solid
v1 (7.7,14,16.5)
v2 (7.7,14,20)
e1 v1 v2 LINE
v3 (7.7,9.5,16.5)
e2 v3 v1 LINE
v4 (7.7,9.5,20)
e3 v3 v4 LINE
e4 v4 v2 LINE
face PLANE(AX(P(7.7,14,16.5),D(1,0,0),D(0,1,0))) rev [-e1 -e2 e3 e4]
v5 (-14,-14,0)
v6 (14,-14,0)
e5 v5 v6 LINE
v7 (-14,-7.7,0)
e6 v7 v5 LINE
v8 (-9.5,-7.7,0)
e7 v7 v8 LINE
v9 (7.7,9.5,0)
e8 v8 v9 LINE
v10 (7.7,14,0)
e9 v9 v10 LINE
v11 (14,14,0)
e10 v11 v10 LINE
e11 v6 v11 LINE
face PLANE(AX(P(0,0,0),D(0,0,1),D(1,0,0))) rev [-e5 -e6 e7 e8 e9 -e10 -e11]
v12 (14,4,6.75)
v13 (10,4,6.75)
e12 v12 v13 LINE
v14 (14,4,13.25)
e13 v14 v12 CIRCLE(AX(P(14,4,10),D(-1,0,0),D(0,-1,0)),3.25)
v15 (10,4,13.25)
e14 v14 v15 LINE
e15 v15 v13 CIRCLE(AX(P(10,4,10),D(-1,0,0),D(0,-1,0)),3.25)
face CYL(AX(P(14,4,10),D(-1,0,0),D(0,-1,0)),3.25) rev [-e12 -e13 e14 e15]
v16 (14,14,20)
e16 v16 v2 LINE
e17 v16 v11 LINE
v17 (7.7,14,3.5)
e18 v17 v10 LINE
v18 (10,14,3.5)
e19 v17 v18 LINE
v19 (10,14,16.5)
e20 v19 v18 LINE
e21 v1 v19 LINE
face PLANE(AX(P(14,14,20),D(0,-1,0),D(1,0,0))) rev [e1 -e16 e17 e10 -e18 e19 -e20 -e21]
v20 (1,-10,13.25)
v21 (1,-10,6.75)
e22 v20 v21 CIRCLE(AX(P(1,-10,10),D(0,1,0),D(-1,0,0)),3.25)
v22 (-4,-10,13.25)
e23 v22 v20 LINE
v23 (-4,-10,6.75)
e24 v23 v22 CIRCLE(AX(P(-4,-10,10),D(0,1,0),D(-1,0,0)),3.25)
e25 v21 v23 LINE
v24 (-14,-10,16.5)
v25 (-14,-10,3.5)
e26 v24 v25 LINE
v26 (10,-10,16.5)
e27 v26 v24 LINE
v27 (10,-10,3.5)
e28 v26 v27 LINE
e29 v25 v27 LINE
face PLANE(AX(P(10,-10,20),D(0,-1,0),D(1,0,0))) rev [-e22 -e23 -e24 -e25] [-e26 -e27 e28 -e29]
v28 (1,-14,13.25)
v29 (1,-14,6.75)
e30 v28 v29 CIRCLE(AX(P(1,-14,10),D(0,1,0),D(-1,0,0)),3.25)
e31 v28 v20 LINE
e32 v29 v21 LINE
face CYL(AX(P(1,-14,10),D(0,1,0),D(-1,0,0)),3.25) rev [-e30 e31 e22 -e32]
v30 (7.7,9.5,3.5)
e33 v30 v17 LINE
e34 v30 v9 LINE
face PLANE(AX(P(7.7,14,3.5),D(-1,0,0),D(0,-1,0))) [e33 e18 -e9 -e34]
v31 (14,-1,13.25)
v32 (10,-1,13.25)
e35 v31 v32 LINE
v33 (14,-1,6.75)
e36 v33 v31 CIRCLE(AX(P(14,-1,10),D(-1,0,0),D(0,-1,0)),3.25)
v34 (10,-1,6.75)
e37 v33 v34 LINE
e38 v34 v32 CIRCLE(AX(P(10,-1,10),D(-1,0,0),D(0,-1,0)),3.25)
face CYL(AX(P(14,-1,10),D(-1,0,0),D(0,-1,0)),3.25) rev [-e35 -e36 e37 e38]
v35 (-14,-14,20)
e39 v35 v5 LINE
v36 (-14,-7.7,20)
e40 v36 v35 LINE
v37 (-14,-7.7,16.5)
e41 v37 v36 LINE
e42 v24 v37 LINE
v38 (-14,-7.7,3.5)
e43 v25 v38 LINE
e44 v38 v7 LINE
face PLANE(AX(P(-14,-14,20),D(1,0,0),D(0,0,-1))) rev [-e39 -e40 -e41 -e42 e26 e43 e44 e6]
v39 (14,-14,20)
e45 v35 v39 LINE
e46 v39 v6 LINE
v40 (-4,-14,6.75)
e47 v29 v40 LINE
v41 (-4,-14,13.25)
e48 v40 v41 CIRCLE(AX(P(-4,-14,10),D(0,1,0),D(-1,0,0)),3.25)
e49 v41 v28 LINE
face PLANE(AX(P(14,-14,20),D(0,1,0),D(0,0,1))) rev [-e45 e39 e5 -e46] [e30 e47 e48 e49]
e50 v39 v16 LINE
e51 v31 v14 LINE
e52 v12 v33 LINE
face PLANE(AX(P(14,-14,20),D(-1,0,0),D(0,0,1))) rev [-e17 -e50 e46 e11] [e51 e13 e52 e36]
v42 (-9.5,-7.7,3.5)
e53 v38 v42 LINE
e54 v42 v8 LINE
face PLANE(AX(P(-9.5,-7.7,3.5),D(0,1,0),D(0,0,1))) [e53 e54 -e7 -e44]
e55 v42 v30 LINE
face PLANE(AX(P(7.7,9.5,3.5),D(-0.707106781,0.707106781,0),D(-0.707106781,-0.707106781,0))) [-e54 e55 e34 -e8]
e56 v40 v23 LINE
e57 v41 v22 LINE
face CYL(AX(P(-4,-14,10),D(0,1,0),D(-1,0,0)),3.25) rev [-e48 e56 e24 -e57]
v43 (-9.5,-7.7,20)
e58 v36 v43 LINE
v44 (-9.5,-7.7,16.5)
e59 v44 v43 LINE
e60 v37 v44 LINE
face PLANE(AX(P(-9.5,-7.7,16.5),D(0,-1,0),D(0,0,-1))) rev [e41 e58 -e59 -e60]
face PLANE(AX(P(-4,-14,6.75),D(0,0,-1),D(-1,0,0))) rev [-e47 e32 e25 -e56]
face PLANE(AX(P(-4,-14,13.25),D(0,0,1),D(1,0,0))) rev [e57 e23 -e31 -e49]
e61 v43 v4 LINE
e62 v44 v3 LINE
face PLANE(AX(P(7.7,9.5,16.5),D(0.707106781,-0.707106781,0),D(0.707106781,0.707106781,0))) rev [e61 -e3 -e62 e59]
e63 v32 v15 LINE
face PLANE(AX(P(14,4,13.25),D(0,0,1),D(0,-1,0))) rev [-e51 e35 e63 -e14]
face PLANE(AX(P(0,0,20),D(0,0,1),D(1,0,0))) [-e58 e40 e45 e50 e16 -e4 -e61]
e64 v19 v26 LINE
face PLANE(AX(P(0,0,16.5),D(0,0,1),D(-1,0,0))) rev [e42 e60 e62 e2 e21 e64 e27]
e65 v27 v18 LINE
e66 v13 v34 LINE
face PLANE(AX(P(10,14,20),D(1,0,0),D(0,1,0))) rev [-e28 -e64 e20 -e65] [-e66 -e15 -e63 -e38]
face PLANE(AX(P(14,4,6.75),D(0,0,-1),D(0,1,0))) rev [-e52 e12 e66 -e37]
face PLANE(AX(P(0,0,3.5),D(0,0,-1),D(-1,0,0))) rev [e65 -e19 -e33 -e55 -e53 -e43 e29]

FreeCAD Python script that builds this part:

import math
import FreeCAD as App
import Part
import Sketcher

V = App.Vector
Q = App.Units.Quantity


def add_polygon(sketch, points):
    """Adds a closed chain of lines whose ends are joined by coincident constraints."""
    first, n = sketch.GeometryCount, len(points)
    for a, b in zip(points, points[1:] + points[:1]):
        sketch.addGeometry(Part.LineSegment(App.Vector(*a, 0), App.Vector(*b, 0)), False)
    for i in range(n):
        sketch.addConstraint(Sketcher.Constraint("Coincident", first + i, 2, first + (i + 1) % n, 1))

doc = App.newDocument("Part")
body = doc.addObject("PartDesign::Body", "Body")

# Sketch on XY plane
sketch1 = body.newObject("Sketcher::SketchObject", "Sketch")
sketch1.AttachmentSupport = (doc.getObject("XY_Plane"), [""])
sketch1.MapMode = "FlatFace"
add_polygon(sketch1, [(-14, -14), (14, -14), (14, 14), (10, 14), (10, -10), (-14, -10)])  # lines 0-5
sketch1.addConstraint([
    Sketcher.Constraint("Horizontal", 0),
    Sketcher.Constraint("Vertical", 1),
    Sketcher.Constraint("Horizontal", 2),
    Sketcher.Constraint("Vertical", 3),
    Sketcher.Constraint("Horizontal", 4),
    Sketcher.Constraint("Vertical", 5),
    Sketcher.Constraint("Symmetric", 1, 2, 5, 2, -1, 1),
    Sketcher.Constraint("Equal", 0, 1),
    Sketcher.Constraint("Equal", 4, 3),
    Sketcher.Constraint("DistanceX", 0, 1, 0, 2, Q("28 mm")),
    Sketcher.Constraint("DistanceX", 2, 2, 2, 1, Q("4 mm")),
])
pad1 = body.newObject("PartDesign::Pad", "Pad")
pad1.Profile = sketch1
pad1.Length = 20

# Sketch on XY plane
sketch2 = body.newObject("Sketcher::SketchObject", "Sketch001")
sketch2.AttachmentSupport = (doc.getObject("XY_Plane"), [""])
sketch2.MapMode = "FlatFace"
add_polygon(sketch2, [(7.7, 14), (14, 14), (14, -14), (-14, -14), (-14, -7.7), (-9.5, -7.7), (7.7, 9.5)])  # lines 0-6
sketch2.addConstraint([
    Sketcher.Constraint("Horizontal", 0),
    Sketcher.Constraint("Vertical", 1),
    Sketcher.Constraint("Horizontal", 2),
    Sketcher.Constraint("Vertical", 3),
    Sketcher.Constraint("Horizontal", 4),
    Sketcher.Constraint("Vertical", 6),
    Sketcher.Constraint("Symmetric", 0, 2, 2, 2, -1, 1),
    Sketcher.Constraint("Equal", 2, 1),
    Sketcher.Constraint("Equal", 0, 3),
    Sketcher.Constraint("Equal", 4, 6),
    Sketcher.Constraint("DistanceX", 2, 2, 2, 1, Q("28 mm")),
    Sketcher.Constraint("DistanceX", 0, 1, 0, 2, Q("6.3 mm")),
    Sketcher.Constraint("DistanceX", 4, 1, 4, 2, Q("4.5 mm")),
])
pad2 = body.newObject("PartDesign::Pad", "Pad001")
pad2.Profile = sketch2
pad2.Length = 3.5
doc.recompute()

datumplane = body.newObject("PartDesign::Plane", "DatumPlane")
datumplane.AttachmentSupport = (doc.getObject("XY_Plane"), [""])
datumplane.MapMode = "FlatFace"
datumplane.AttachmentOffset = App.Placement(V(0, 0, 10), App.Rotation())
mirrored = body.newObject("PartDesign::Mirrored", "Mirrored")
mirrored.Originals = [pad2]
mirrored.MirrorPlane = (datumplane, [""])
body.Tip = mirrored

# Sketch on YZ plane
sketch3 = body.newObject("Sketcher::SketchObject", "Sketch002")
sketch3.AttachmentSupport = (doc.getObject("YZ_Plane"), [""])
sketch3.MapMode = "FlatFace"
sketch3.AttachmentOffset = App.Placement(V(0, 0, 10), App.Rotation())
sketch3.addGeometry([
    Part.LineSegment(V(-1, 13.2, 0), V(4, 13.2, 0)),
    Part.ArcOfCircle(Part.Circle(V(4, 10, 0), V(0, 0, 1), 3.2), math.radians(-90), math.radians(90)),
    Part.LineSegment(V(4, 6.8, 0), V(-1, 6.8, 0)),
    Part.ArcOfCircle(Part.Circle(V(-1, 10, 0), V(0, 0, 1), 3.2), math.radians(90), math.radians(270)),
], False)
sketch3.addConstraint([
    Sketcher.Constraint("Tangent", 0, 2, 1, 2),
    Sketcher.Constraint("Tangent", 1, 1, 2, 1),
    Sketcher.Constraint("Tangent", 2, 2, 3, 2),
    Sketcher.Constraint("Tangent", 3, 1, 0, 1),
    Sketcher.Constraint("Horizontal", 0),
    Sketcher.Constraint("Horizontal", 2),
    Sketcher.Constraint("DistanceX", 0, 1, 0, 2, Q("5 mm")),
    Sketcher.Constraint("Radius", 1, Q("3.25 mm")),
    Sketcher.Constraint("DistanceX", -1, 1, 1, 3, Q("4 mm")),
    Sketcher.Constraint("DistanceY", -1, 1, 1, 3, Q("10 mm")),
])
pocket1 = body.newObject("PartDesign::Pocket", "Pocket")
pocket1.Profile = sketch3
pocket1.Type = "ThroughAll"
pocket1.Reversed = True

# Sketch on XZ plane
sketch4 = body.newObject("Sketcher::SketchObject", "Sketch003")
sketch4.AttachmentSupport = (doc.getObject("XZ_Plane"), [""])
sketch4.MapMode = "FlatFace"
sketch4.AttachmentOffset = App.Placement(V(0, 0, 10), App.Rotation())
sketch4.addGeometry([
    Part.LineSegment(V(1, 6.8, 0), V(-4, 6.8, 0)),
    Part.ArcOfCircle(Part.Circle(V(-4, 10, 0), V(0, 0, 1), 3.2), math.radians(90), math.radians(270)),
    Part.LineSegment(V(-4, 13.2, 0), V(1, 13.2, 0)),
    Part.ArcOfCircle(Part.Circle(V(1, 10, 0), V(0, 0, 1), 3.2), math.radians(-90), math.radians(90)),
], False)
sketch4.addConstraint([
    Sketcher.Constraint("Tangent", 0, 2, 1, 2),
    Sketcher.Constraint("Tangent", 1, 1, 2, 1),
    Sketcher.Constraint("Tangent", 2, 2, 3, 2),
    Sketcher.Constraint("Tangent", 3, 1, 0, 1),
    Sketcher.Constraint("Horizontal", 0),
    Sketcher.Constraint("Horizontal", 2),
    Sketcher.Constraint("DistanceX", 0, 2, 0, 1, Q("5 mm")),
    Sketcher.Constraint("Radius", 1, Q("3.25 mm")),
    Sketcher.Constraint("DistanceX", 1, 3, -1, 1, Q("4 mm")),
    Sketcher.Constraint("DistanceY", -1, 1, 1, 3, Q("10 mm")),
])
pocket2 = body.newObject("PartDesign::Pocket", "Pocket001")
pocket2.Profile = sketch4
pocket2.Type = "ThroughAll"
pocket2.Reversed = True

doc.recompute()
